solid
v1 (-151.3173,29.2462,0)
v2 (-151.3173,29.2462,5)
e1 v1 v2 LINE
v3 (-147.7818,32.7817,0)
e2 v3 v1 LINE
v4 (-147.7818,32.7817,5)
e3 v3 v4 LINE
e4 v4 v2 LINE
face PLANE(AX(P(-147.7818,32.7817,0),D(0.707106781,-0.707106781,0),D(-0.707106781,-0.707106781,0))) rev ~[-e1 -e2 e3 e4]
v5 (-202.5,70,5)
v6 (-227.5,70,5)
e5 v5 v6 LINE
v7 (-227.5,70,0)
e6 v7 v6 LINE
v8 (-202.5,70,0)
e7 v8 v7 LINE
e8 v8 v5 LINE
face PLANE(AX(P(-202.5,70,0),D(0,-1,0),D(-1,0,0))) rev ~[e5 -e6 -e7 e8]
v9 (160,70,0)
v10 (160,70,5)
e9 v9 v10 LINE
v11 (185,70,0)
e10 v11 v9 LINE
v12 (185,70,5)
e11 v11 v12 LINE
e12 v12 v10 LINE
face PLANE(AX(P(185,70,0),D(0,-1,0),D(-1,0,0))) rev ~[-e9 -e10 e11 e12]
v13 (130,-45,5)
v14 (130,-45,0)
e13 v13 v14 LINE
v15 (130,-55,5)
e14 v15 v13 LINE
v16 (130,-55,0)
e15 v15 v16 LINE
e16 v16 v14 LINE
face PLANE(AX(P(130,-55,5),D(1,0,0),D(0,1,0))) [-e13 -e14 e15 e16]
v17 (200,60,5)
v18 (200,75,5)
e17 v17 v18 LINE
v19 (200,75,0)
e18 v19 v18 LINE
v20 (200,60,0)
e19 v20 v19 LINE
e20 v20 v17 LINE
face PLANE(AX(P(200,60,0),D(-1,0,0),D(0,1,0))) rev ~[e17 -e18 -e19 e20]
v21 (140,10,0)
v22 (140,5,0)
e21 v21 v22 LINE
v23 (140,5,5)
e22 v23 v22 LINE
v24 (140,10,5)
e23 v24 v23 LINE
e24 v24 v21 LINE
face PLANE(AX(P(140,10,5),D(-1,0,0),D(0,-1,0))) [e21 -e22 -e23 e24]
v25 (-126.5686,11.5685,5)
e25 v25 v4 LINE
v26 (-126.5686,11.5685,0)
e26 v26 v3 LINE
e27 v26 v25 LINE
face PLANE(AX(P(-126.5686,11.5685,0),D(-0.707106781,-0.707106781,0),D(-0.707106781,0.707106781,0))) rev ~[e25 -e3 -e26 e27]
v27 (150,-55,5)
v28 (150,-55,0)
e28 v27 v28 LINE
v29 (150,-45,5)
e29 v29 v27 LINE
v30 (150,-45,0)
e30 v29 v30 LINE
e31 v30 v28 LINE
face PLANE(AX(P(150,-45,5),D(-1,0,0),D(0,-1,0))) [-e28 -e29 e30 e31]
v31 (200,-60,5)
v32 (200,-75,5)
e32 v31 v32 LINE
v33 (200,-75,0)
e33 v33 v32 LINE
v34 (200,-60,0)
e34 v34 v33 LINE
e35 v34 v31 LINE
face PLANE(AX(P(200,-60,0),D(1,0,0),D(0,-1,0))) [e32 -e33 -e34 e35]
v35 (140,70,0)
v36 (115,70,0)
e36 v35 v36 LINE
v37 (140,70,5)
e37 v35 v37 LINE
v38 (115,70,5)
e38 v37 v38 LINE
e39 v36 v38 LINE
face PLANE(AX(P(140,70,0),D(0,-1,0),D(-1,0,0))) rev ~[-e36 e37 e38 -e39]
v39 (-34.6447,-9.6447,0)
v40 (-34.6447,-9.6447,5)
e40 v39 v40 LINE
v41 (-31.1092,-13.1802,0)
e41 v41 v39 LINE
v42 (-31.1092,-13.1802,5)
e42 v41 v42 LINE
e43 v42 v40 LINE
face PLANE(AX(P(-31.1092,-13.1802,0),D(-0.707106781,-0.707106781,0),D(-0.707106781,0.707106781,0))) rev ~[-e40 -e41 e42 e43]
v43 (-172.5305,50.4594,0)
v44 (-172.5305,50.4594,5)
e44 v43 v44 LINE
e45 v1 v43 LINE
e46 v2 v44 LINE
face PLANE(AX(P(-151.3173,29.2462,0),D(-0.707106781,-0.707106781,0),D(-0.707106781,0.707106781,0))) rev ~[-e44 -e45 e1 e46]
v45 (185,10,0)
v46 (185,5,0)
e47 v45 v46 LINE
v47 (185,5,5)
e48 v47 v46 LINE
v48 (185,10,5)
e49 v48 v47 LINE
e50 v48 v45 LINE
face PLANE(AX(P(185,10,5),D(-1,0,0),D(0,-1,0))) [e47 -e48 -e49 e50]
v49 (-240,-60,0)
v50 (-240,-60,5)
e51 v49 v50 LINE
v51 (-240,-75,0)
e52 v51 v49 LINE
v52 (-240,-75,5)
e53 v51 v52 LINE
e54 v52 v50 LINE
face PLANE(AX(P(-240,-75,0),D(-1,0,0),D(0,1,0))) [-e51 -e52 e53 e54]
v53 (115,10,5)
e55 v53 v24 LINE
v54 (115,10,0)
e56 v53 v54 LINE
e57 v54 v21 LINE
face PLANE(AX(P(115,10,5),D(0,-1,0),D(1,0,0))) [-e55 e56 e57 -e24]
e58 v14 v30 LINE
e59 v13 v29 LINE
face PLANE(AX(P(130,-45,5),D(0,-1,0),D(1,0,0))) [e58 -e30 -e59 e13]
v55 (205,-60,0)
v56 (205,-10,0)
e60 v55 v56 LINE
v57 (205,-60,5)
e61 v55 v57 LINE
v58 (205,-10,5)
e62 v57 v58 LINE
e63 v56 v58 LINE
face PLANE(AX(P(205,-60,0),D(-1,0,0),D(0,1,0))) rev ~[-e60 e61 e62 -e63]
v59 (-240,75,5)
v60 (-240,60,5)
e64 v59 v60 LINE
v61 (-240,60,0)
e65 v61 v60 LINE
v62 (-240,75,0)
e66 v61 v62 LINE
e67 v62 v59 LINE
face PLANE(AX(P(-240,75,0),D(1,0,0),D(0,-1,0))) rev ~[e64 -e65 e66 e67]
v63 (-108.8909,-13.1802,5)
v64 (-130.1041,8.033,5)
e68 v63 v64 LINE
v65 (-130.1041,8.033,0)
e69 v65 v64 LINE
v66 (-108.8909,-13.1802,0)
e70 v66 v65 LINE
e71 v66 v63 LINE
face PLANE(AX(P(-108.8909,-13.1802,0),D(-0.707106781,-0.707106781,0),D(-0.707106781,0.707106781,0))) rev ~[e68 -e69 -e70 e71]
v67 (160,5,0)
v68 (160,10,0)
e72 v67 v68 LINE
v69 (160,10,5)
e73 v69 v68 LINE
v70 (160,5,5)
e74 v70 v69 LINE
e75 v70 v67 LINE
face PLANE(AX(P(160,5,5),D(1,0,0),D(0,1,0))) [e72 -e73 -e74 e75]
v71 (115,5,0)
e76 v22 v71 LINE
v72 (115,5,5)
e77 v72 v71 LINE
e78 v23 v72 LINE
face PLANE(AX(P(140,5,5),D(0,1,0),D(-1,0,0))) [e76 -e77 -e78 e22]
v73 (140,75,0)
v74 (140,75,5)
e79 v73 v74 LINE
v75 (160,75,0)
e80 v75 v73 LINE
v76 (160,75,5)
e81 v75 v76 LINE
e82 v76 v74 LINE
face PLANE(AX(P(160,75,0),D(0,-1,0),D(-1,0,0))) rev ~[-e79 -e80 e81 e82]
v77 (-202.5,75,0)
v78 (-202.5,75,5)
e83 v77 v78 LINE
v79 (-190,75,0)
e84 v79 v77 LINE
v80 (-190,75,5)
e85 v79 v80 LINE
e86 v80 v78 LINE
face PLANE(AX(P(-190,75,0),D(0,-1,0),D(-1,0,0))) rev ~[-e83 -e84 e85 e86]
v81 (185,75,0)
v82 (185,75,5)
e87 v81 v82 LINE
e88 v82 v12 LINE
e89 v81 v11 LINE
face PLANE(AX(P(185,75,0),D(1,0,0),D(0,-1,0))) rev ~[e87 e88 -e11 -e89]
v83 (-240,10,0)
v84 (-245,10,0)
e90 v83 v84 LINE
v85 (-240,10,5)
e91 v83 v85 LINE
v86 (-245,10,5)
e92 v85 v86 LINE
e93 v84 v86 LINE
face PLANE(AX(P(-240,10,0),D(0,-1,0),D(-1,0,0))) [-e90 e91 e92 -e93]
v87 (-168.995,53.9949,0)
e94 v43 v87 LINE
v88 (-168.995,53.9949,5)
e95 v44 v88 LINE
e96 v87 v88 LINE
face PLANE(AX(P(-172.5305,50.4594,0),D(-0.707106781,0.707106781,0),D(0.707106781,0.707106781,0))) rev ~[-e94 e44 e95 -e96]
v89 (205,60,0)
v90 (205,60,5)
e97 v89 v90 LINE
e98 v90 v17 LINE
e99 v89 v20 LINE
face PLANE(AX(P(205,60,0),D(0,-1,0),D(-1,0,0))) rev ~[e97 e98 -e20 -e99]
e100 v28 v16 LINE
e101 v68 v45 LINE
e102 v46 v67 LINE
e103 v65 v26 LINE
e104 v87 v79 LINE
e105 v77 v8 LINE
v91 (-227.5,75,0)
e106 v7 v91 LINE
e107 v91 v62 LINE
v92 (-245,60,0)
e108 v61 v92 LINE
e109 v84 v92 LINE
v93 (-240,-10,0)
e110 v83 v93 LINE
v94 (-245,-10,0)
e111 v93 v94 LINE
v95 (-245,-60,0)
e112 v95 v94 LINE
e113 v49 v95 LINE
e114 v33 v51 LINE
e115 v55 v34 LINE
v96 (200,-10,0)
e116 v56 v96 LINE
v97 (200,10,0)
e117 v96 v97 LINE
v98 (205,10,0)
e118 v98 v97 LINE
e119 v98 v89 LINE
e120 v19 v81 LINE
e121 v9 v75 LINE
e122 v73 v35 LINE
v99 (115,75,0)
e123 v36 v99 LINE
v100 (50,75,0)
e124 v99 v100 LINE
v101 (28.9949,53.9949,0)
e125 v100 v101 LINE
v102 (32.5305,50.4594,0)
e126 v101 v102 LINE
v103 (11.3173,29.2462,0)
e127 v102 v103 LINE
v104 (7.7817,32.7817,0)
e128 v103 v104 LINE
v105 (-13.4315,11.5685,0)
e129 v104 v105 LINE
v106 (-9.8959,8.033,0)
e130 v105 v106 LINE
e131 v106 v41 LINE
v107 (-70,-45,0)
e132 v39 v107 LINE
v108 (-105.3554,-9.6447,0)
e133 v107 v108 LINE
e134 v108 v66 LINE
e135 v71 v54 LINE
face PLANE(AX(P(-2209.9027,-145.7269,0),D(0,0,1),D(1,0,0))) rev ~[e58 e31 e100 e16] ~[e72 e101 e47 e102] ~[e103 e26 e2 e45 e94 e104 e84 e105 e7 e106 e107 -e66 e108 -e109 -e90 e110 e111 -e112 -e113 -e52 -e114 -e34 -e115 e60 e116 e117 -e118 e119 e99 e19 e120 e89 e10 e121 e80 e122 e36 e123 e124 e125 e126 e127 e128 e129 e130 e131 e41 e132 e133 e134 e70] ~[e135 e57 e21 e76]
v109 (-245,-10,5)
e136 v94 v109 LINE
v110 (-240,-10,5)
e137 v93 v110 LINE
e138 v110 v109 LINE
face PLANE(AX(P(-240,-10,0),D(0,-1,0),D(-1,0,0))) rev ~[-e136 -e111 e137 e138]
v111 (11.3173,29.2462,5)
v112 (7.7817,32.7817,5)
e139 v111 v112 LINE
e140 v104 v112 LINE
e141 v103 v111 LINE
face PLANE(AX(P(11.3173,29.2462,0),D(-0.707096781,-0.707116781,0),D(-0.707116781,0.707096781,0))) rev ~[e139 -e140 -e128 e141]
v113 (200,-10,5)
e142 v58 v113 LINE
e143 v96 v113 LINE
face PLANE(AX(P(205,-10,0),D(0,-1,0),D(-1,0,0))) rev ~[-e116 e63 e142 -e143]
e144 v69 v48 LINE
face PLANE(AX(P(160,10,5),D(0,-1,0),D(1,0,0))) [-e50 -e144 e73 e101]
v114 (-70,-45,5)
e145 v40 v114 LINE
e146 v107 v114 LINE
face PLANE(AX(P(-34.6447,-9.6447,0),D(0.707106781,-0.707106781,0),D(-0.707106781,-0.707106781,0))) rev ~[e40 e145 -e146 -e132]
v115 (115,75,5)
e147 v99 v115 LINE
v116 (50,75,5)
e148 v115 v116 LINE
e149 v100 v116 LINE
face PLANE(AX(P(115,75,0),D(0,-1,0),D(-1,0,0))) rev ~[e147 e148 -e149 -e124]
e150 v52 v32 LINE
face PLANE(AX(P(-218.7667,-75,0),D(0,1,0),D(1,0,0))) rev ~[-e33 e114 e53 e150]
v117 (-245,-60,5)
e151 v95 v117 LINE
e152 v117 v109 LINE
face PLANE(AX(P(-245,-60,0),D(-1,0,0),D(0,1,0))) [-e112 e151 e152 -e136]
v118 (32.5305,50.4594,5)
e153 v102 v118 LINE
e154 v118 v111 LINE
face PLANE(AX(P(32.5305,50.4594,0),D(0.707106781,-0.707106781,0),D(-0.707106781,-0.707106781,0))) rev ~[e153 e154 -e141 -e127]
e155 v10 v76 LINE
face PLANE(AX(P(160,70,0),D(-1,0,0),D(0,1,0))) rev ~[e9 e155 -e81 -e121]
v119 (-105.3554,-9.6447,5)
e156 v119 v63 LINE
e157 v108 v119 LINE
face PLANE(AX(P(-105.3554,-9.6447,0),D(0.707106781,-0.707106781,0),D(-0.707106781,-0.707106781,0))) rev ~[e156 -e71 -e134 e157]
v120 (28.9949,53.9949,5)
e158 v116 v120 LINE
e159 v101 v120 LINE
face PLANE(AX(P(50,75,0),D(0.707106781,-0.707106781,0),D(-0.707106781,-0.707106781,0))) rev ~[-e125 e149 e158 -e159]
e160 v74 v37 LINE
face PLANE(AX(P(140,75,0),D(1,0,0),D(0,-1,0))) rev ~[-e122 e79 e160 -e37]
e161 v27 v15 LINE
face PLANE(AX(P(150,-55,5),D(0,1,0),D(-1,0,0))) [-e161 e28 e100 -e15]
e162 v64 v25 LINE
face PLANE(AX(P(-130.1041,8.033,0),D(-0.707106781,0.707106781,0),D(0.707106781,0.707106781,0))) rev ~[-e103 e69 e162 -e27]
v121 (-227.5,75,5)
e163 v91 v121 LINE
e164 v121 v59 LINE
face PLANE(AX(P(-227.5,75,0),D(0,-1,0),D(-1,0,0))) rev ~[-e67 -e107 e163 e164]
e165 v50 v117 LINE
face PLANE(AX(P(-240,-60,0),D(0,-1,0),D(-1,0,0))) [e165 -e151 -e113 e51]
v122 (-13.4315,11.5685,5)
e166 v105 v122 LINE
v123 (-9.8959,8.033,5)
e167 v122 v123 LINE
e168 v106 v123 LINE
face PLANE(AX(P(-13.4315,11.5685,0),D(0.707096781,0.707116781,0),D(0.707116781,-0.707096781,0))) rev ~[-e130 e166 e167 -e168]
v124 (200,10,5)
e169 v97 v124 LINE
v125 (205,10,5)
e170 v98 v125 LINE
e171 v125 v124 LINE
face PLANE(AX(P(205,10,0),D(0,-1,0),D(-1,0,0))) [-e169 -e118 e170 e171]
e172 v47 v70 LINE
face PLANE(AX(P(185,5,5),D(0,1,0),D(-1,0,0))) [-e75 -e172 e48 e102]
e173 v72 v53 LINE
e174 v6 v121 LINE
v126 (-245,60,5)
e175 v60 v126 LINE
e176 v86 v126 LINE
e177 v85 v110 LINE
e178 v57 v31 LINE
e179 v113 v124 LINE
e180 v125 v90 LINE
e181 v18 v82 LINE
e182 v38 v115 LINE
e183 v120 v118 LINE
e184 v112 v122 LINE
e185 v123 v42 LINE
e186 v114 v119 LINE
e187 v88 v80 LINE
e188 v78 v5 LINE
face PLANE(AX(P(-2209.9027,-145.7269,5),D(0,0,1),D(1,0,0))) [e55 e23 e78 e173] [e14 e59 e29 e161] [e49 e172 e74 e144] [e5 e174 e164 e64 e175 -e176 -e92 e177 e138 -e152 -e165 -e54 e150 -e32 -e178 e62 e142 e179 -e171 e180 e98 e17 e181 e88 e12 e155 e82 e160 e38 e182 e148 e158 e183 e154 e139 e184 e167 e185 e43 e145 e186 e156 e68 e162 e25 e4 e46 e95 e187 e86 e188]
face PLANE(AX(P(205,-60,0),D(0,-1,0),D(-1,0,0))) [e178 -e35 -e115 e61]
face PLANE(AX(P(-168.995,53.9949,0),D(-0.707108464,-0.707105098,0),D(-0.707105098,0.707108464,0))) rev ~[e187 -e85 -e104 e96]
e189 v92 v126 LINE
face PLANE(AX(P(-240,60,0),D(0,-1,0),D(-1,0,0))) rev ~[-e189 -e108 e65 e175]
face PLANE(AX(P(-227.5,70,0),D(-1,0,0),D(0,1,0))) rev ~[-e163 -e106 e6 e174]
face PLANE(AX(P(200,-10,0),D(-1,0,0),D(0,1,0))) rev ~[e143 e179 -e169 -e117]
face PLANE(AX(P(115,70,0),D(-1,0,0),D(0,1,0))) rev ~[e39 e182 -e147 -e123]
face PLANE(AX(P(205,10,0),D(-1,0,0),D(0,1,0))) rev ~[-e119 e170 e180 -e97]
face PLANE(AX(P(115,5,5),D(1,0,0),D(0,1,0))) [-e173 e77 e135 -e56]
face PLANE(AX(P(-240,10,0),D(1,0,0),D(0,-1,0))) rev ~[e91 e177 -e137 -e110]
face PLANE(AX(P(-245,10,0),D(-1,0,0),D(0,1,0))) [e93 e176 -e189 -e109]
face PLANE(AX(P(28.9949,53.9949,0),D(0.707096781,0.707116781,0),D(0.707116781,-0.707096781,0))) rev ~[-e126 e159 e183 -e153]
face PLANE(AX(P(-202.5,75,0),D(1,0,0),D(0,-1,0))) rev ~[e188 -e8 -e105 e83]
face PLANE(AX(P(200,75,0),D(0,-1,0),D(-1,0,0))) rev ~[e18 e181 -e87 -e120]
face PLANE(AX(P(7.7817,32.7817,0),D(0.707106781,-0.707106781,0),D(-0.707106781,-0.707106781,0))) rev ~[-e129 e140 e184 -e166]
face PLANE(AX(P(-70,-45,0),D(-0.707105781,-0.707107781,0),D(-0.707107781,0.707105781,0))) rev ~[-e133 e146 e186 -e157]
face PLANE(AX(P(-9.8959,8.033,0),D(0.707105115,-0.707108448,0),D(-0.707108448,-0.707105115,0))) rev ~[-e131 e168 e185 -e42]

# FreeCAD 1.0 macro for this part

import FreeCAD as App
import Part
import Sketcher

doc = App.newDocument("Part")
params = doc.addObject("Spreadsheet::Sheet", "Params")
for row, (alias, value) in enumerate([
    ("sketch1_width", "5 mm"),
    ("sketch1_width2", "440 mm"),
    ("sketch1_width3", "15 mm"),
    ("sketch1_width4", "25 mm"),
    ("sketch1_width5", "20 mm"),
    ("pad1_length", "5 mm"),
    ("sketch2_width", "25 mm"),
    ("sketch2_height", "5 mm"),
    ("pocket1_length", "5 mm"),
    ("sketch3_width", "20 mm"),
    ("sketch3_height", "10 mm"),
    ("pocket2_length", "10 mm"),
], start=1):
    params.set(f"A{row}", alias)
    params.set(f"B{row}", "=" + value)
    params.setAlias(f"B{row}", alias)

body = doc.addObject("PartDesign::Body", "Body")

sketch1 = body.newObject("Sketcher::SketchObject", "Sketch")
sketch1.AttachmentSupport = (doc.getObject("XY_Plane"), [""])
sketch1.MapMode = "FlatFace"
sketch1.addGeometry(Part.LineSegment(App.Vector(-240, 10, 0), App.Vector(-240, -10, 0)), False)
sketch1.addGeometry(Part.LineSegment(App.Vector(-240, -10, 0), App.Vector(-245, -10, 0)), False)
sketch1.addGeometry(Part.LineSegment(App.Vector(-245, -10, 0), App.Vector(-245, -60, 0)), False)
sketch1.addGeometry(Part.LineSegment(App.Vector(-245, -60, 0), App.Vector(-240, -60, 0)), False)
sketch1.addGeometry(Part.LineSegment(App.Vector(-240, -60, 0), App.Vector(-240, -75, 0)), False)
sketch1.addGeometry(Part.LineSegment(App.Vector(-240, -75, 0), App.Vector(200, -75, 0)), False)
sketch1.addGeometry(Part.LineSegment(App.Vector(200, -75, 0), App.Vector(200, -60, 0)), False)
sketch1.addGeometry(Part.LineSegment(App.Vector(200, -60, 0), App.Vector(205, -60, 0)), False)
sketch1.addGeometry(Part.LineSegment(App.Vector(205, -60, 0), App.Vector(205, -10, 0)), False)
sketch1.addGeometry(Part.LineSegment(App.Vector(205, -10, 0), App.Vector(200, -10, 0)), False)
sketch1.addGeometry(Part.LineSegment(App.Vector(200, -10, 0), App.Vector(200, 10, 0)), False)
sketch1.addGeometry(Part.LineSegment(App.Vector(200, 10, 0), App.Vector(205, 10, 0)), False)
sketch1.addGeometry(Part.LineSegment(App.Vector(205, 10, 0), App.Vector(205, 60, 0)), False)
sketch1.addGeometry(Part.LineSegment(App.Vector(205, 60, 0), App.Vector(200, 60, 0)), False)
sketch1.addGeometry(Part.LineSegment(App.Vector(200, 60, 0), App.Vector(200, 75, 0)), False)
sketch1.addGeometry(Part.LineSegment(App.Vector(200, 75, 0), App.Vector(185, 75, 0)), False)
sketch1.addGeometry(Part.LineSegment(App.Vector(185, 75, 0), App.Vector(185, 70, 0)), False)
sketch1.addGeometry(Part.LineSegment(App.Vector(185, 70, 0), App.Vector(160, 70, 0)), False)
sketch1.addGeometry(Part.LineSegment(App.Vector(160, 70, 0), App.Vector(160, 75, 0)), False)
sketch1.addGeometry(Part.LineSegment(App.Vector(160, 75, 0), App.Vector(140, 75, 0)), False)
sketch1.addGeometry(Part.LineSegment(App.Vector(140, 75, 0), App.Vector(140, 70, 0)), False)
sketch1.addGeometry(Part.LineSegment(App.Vector(140, 70, 0), App.Vector(115, 70, 0)), False)
sketch1.addGeometry(Part.LineSegment(App.Vector(115, 70, 0), App.Vector(115, 75, 0)), False)
sketch1.addGeometry(Part.LineSegment(App.Vector(115, 75, 0), App.Vector(50, 75, 0)), False)
sketch1.addGeometry(Part.LineSegment(App.Vector(50, 75, 0), App.Vector(28.9949, 53.9949, 0)), False)
sketch1.addGeometry(Part.LineSegment(App.Vector(28.9949, 53.9949, 0), App.Vector(32.5305, 50.4594, 0)), False)
sketch1.addGeometry(Part.LineSegment(App.Vector(32.5305, 50.4594, 0), App.Vector(11.3173, 29.2462, 0)), False)
sketch1.addGeometry(Part.LineSegment(App.Vector(11.3173, 29.2462, 0), App.Vector(7.7817, 32.7817, 0)), False)
sketch1.addGeometry(Part.LineSegment(App.Vector(7.7817, 32.7817, 0), App.Vector(-13.4315, 11.5685, 0)), False)
sketch1.addGeometry(Part.LineSegment(App.Vector(-13.4315, 11.5685, 0), App.Vector(-9.8959, 8.033, 0)), False)
sketch1.addGeometry(Part.LineSegment(App.Vector(-9.8959, 8.033, 0), App.Vector(-31.1092, -13.1802, 0)), False)
sketch1.addGeometry(Part.LineSegment(App.Vector(-31.1092, -13.1802, 0), App.Vector(-34.6447, -9.6447, 0)), False)
sketch1.addGeometry(Part.LineSegment(App.Vector(-34.6447, -9.6447, 0), App.Vector(-70, -45, 0)), False)
sketch1.addGeometry(Part.LineSegment(App.Vector(-70, -45, 0), App.Vector(-105.3554, -9.6447, 0)), False)
sketch1.addGeometry(Part.LineSegment(App.Vector(-105.3554, -9.6447, 0), App.Vector(-108.8909, -13.1802, 0)), False)
sketch1.addGeometry(Part.LineSegment(App.Vector(-108.8909, -13.1802, 0), App.Vector(-130.1041, 8.033, 0)), False)
sketch1.addGeometry(Part.LineSegment(App.Vector(-130.1041, 8.033, 0), App.Vector(-126.5686, 11.5685, 0)), False)
sketch1.addGeometry(Part.LineSegment(App.Vector(-126.5686, 11.5685, 0), App.Vector(-147.7818, 32.7817, 0)), False)
sketch1.addGeometry(Part.LineSegment(App.Vector(-147.7818, 32.7817, 0), App.Vector(-151.3173, 29.2462, 0)), False)
sketch1.addGeometry(Part.LineSegment(App.Vector(-151.3173, 29.2462, 0), App.Vector(-172.5305, 50.4594, 0)), False)
sketch1.addGeometry(Part.LineSegment(App.Vector(-172.5305, 50.4594, 0), App.Vector(-168.995, 53.9949, 0)), False)
sketch1.addGeometry(Part.LineSegment(App.Vector(-168.995, 53.9949, 0), App.Vector(-190, 75, 0)), False)
sketch1.addGeometry(Part.LineSegment(App.Vector(-190, 75, 0), App.Vector(-202.5, 75, 0)), False)
sketch1.addGeometry(Part.LineSegment(App.Vector(-202.5, 75, 0), App.Vector(-202.5, 70, 0)), False)
sketch1.addGeometry(Part.LineSegment(App.Vector(-202.5, 70, 0), App.Vector(-227.5, 70, 0)), False)
sketch1.addGeometry(Part.LineSegment(App.Vector(-227.5, 70, 0), App.Vector(-227.5, 75, 0)), False)
sketch1.addGeometry(Part.LineSegment(App.Vector(-227.5, 75, 0), App.Vector(-240, 75, 0)), False)
sketch1.addGeometry(Part.LineSegment(App.Vector(-240, 75, 0), App.Vector(-240, 60, 0)), False)
sketch1.addGeometry(Part.LineSegment(App.Vector(-240, 60, 0), App.Vector(-245, 60, 0)), False)
sketch1.addGeometry(Part.LineSegment(App.Vector(-245, 60, 0), App.Vector(-245, 10, 0)), False)
sketch1.addGeometry(Part.LineSegment(App.Vector(-245, 10, 0), App.Vector(-240, 10, 0)), False)
sketch1.addConstraint(Sketcher.Constraint("Coincident", 0, 2, 1, 1))
sketch1.addConstraint(Sketcher.Constraint("Coincident", 1, 2, 2, 1))
sketch1.addConstraint(Sketcher.Constraint("Coincident", 2, 2, 3, 1))
sketch1.addConstraint(Sketcher.Constraint("Coincident", 3, 2, 4, 1))
sketch1.addConstraint(Sketcher.Constraint("Coincident", 4, 2, 5, 1))
sketch1.addConstraint(Sketcher.Constraint("Coincident", 5, 2, 6, 1))
sketch1.addConstraint(Sketcher.Constraint("Coincident", 6, 2, 7, 1))
sketch1.addConstraint(Sketcher.Constraint("Coincident", 7, 2, 8, 1))
sketch1.addConstraint(Sketcher.Constraint("Coincident", 8, 2, 9, 1))
sketch1.addConstraint(Sketcher.Constraint("Coincident", 9, 2, 10, 1))
sketch1.addConstraint(Sketcher.Constraint("Coincident", 10, 2, 11, 1))
sketch1.addConstraint(Sketcher.Constraint("Coincident", 11, 2, 12, 1))
sketch1.addConstraint(Sketcher.Constraint("Coincident", 12, 2, 13, 1))
sketch1.addConstraint(Sketcher.Constraint("Coincident", 13, 2, 14, 1))
sketch1.addConstraint(Sketcher.Constraint("Coincident", 14, 2, 15, 1))
sketch1.addConstraint(Sketcher.Constraint("Coincident", 15, 2, 16, 1))
sketch1.addConstraint(Sketcher.Constraint("Coincident", 16, 2, 17, 1))
sketch1.addConstraint(Sketcher.Constraint("Coincident", 17, 2, 18, 1))
sketch1.addConstraint(Sketcher.Constraint("Coincident", 18, 2, 19, 1))
sketch1.addConstraint(Sketcher.Constraint("Coincident", 19, 2, 20, 1))
sketch1.addConstraint(Sketcher.Constraint("Coincident", 20, 2, 21, 1))
sketch1.addConstraint(Sketcher.Constraint("Coincident", 21, 2, 22, 1))
sketch1.addConstraint(Sketcher.Constraint("Coincident", 22, 2, 23, 1))
sketch1.addConstraint(Sketcher.Constraint("Coincident", 23, 2, 24, 1))
sketch1.addConstraint(Sketcher.Constraint("Coincident", 24, 2, 25, 1))
sketch1.addConstraint(Sketcher.Constraint("Coincident", 25, 2, 26, 1))
sketch1.addConstraint(Sketcher.Constraint("Coincident", 26, 2, 27, 1))
sketch1.addConstraint(Sketcher.Constraint("Coincident", 27, 2, 28, 1))
sketch1.addConstraint(Sketcher.Constraint("Coincident", 28, 2, 29, 1))
sketch1.addConstraint(Sketcher.Constraint("Coincident", 29, 2, 30, 1))
sketch1.addConstraint(Sketcher.Constraint("Coincident", 30, 2, 31, 1))
sketch1.addConstraint(Sketcher.Constraint("Coincident", 31, 2, 32, 1))
sketch1.addConstraint(Sketcher.Constraint("Coincident", 32, 2, 33, 1))
sketch1.addConstraint(Sketcher.Constraint("Coincident", 33, 2, 34, 1))
sketch1.addConstraint(Sketcher.Constraint("Coincident", 34, 2, 35, 1))
sketch1.addConstraint(Sketcher.Constraint("Coincident", 35, 2, 36, 1))
sketch1.addConstraint(Sketcher.Constraint("Coincident", 36, 2, 37, 1))
sketch1.addConstraint(Sketcher.Constraint("Coincident", 37, 2, 38, 1))
sketch1.addConstraint(Sketcher.Constraint("Coincident", 38, 2, 39, 1))
sketch1.addConstraint(Sketcher.Constraint("Coincident", 39, 2, 40, 1))
sketch1.addConstraint(Sketcher.Constraint("Coincident", 40, 2, 41, 1))
sketch1.addConstraint(Sketcher.Constraint("Coincident", 41, 2, 42, 1))
sketch1.addConstraint(Sketcher.Constraint("Coincident", 42, 2, 43, 1))
sketch1.addConstraint(Sketcher.Constraint("Coincident", 43, 2, 44, 1))
sketch1.addConstraint(Sketcher.Constraint("Coincident", 44, 2, 45, 1))
sketch1.addConstraint(Sketcher.Constraint("Coincident", 45, 2, 46, 1))
sketch1.addConstraint(Sketcher.Constraint("Coincident", 46, 2, 47, 1))
sketch1.addConstraint(Sketcher.Constraint("Coincident", 47, 2, 48, 1))
sketch1.addConstraint(Sketcher.Constraint("Coincident", 48, 2, 49, 1))
sketch1.addConstraint(Sketcher.Constraint("Coincident", 49, 2, 50, 1))
sketch1.addConstraint(Sketcher.Constraint("Coincident", 50, 2, 0, 1))
sketch1.addConstraint(Sketcher.Constraint("Vertical", 0))
sketch1.addConstraint(Sketcher.Constraint("Horizontal", 1))
sketch1.addConstraint(Sketcher.Constraint("Vertical", 2))
sketch1.addConstraint(Sketcher.Constraint("Horizontal", 3))
sketch1.addConstraint(Sketcher.Constraint("Vertical", 4))
sketch1.addConstraint(Sketcher.Constraint("Horizontal", 5))
sketch1.addConstraint(Sketcher.Constraint("Vertical", 6))
sketch1.addConstraint(Sketcher.Constraint("Horizontal", 7))
sketch1.addConstraint(Sketcher.Constraint("Vertical", 8))
sketch1.addConstraint(Sketcher.Constraint("Horizontal", 9))
sketch1.addConstraint(Sketcher.Constraint("Vertical", 10))
sketch1.addConstraint(Sketcher.Constraint("Horizontal", 11))
sketch1.addConstraint(Sketcher.Constraint("Vertical", 12))
sketch1.addConstraint(Sketcher.Constraint("Horizontal", 13))
sketch1.addConstraint(Sketcher.Constraint("Vertical", 14))
sketch1.addConstraint(Sketcher.Constraint("Horizontal", 15))
sketch1.addConstraint(Sketcher.Constraint("Vertical", 16))
sketch1.addConstraint(Sketcher.Constraint("Horizontal", 17))
sketch1.addConstraint(Sketcher.Constraint("Vertical", 18))
sketch1.addConstraint(Sketcher.Constraint("Horizontal", 19))
sketch1.addConstraint(Sketcher.Constraint("Vertical", 20))
sketch1.addConstraint(Sketcher.Constraint("Horizontal", 21))
sketch1.addConstraint(Sketcher.Constraint("Vertical", 22))
sketch1.addConstraint(Sketcher.Constraint("Horizontal", 23))
sketch1.addConstraint(Sketcher.Constraint("Horizontal", 42))
sketch1.addConstraint(Sketcher.Constraint("Vertical", 43))
sketch1.addConstraint(Sketcher.Constraint("Horizontal", 44))
sketch1.addConstraint(Sketcher.Constraint("Vertical", 45))
sketch1.addConstraint(Sketcher.Constraint("Horizontal", 46))
sketch1.addConstraint(Sketcher.Constraint("Vertical", 47))
sketch1.addConstraint(Sketcher.Constraint("Horizontal", 48))
sketch1.addConstraint(Sketcher.Constraint("Vertical", 49))
sketch1.addConstraint(Sketcher.Constraint("Horizontal", 50))
sketch1.addConstraint(Sketcher.Constraint("Symmetric", 8, 2, 11, 2, -1))
sketch1.addConstraint(Sketcher.Constraint("Symmetric", 6, 2, 13, 2, -1))
sketch1.addConstraint(Sketcher.Constraint("Symmetric", 4, 2, 46, 2, -1))
sketch1.addConstraint(Sketcher.Constraint("Symmetric", 2, 2, 48, 2, -1))
sketch1.addConstraint(Sketcher.Constraint("Perpendicular", 24, 25))
sketch1.addConstraint(Sketcher.Constraint("Perpendicular", 25, 26))
sketch1.addConstraint(Sketcher.Constraint("Perpendicular", 26, 27))
sketch1.addConstraint(Sketcher.Constraint("Perpendicular", 27, 28))
sketch1.addConstraint(Sketcher.Constraint("Perpendicular", 28, 29))
sketch1.addConstraint(Sketcher.Constraint("Perpendicular", 29, 30))
sketch1.addConstraint(Sketcher.Constraint("Perpendicular", 30, 31))
sketch1.addConstraint(Sketcher.Constraint("Perpendicular", 31, 32))
sketch1.addConstraint(Sketcher.Constraint("Perpendicular", 32, 33))
sketch1.addConstraint(Sketcher.Constraint("Perpendicular", 33, 34))
sketch1.addConstraint(Sketcher.Constraint("Perpendicular", 34, 35))
sketch1.addConstraint(Sketcher.Constraint("Perpendicular", 35, 36))
sketch1.addConstraint(Sketcher.Constraint("Perpendicular", 36, 37))
sketch1.addConstraint(Sketcher.Constraint("Perpendicular", 37, 38))
sketch1.addConstraint(Sketcher.Constraint("Perpendicular", 38, 39))
sketch1.addConstraint(Sketcher.Constraint("Perpendicular", 39, 40))
sketch1.addConstraint(Sketcher.Constraint("Perpendicular", 40, 41))
sketch1.addConstraint(Sketcher.Constraint("Horizontal", 3, 2, 6, 2))
sketch1.addConstraint(Sketcher.Constraint("Horizontal", 1, 2, 8, 2))
sketch1.addConstraint(Sketcher.Constraint("Horizontal", 15, 2, 18, 2))
sketch1.addConstraint(Sketcher.Constraint("Horizontal", 17, 2, 20, 2))
sketch1.addConstraint(Sketcher.Constraint("Horizontal", 19, 2, 22, 2))
sketch1.addConstraint(Sketcher.Constraint("Horizontal", 31, 2, 33, 2))
sketch1.addConstraint(Sketcher.Constraint("Horizontal", 30, 2, 34, 2))
sketch1.addConstraint(Sketcher.Constraint("Horizontal", 29, 2, 35, 2))
sketch1.addConstraint(Sketcher.Constraint("Horizontal", 28, 2, 36, 2))
sketch1.addConstraint(Sketcher.Constraint("Horizontal", 27, 2, 37, 2))
sketch1.addConstraint(Sketcher.Constraint("Horizontal", 26, 2, 38, 2))
sketch1.addConstraint(Sketcher.Constraint("Horizontal", 25, 2, 39, 2))
sketch1.addConstraint(Sketcher.Constraint("Horizontal", 24, 2, 40, 2))
sketch1.addConstraint(Sketcher.Constraint("Horizontal", 23, 2, 41, 2))
sketch1.addConstraint(Sketcher.Constraint("Horizontal", 21, 2, 43, 2))
sketch1.addConstraint(Sketcher.Constraint("Horizontal", 42, 2, 45, 2))
sketch1.addConstraint(Sketcher.Constraint("Horizontal", 11, 2, 49, 2))
sketch1.addConstraint(Sketcher.Constraint("Vertical", 0, 2, 3, 2))
sketch1.addConstraint(Sketcher.Constraint("Vertical", 6, 2, 9, 2))
sketch1.addConstraint(Sketcher.Constraint("Equal", 3, 7))
sketch1.addConstraint(Sketcher.Constraint("Equal", 17, 21))
sketch1.addConstraint(Sketcher.Constraint("Equal", 21, 44))
sketch1.addConstraint(Sketcher.Constraint("Equal", 42, 46))
sketch1.addConstraint(Sketcher.Constraint("Equal", 19, 0))
sketch1.addConstraint(Sketcher.Constraint("Equal", 15, 4))
sketch1.addConstraint(Sketcher.Constraint("Equal", 50, 16))
sketch1.addConstraint(Sketcher.Constraint("Equal", 25, 27))
sketch1.addConstraint(Sketcher.Constraint("Equal", 26, 28))
sketch1.addConstraint(Sketcher.Constraint("Equal", 27, 29))
sketch1.addConstraint(Sketcher.Constraint("Equal", 28, 30))
sketch1.addConstraint(Sketcher.Constraint("Equal", 29, 31))
sketch1.addConstraint(Sketcher.Constraint("Equal", 32, 33))
sketch1.addConstraint(Sketcher.Constraint("DistanceX", 1, 2, 1, 1, 5.0))
sketch1.addConstraint(Sketcher.Constraint("DistanceX", 5, 1, 5, 2, 440.0))
sketch1.addConstraint(Sketcher.Constraint("DistanceX", 15, 2, 15, 1, 15.0))
sketch1.addConstraint(Sketcher.Constraint("DistanceX", 17, 2, 17, 1, 25.0))
sketch1.addConstraint(Sketcher.Constraint("DistanceX", 19, 2, 19, 1, 20.0))
sketch1.addConstraint(Sketcher.Constraint("DistanceX", 23, 2, 23, 1, 65.0))
sketch1.addConstraint(Sketcher.Constraint("DistanceY", 2, 2, 2, 1, 50.0))
sketch1.addConstraint(Sketcher.Constraint("Distance", 25, 5.0))
sketch1.addConstraint(Sketcher.Constraint("Distance", 26, 30.0))
sketch1.addConstraint(Sketcher.Constraint("Distance", 32, 50.0))
sketch1.addConstraint(Sketcher.Constraint("DistanceX", 42, 2, 42, 1, 12.5))
sketch1.addConstraint(Sketcher.Constraint("DistanceX", 0, 2, -1, 1, 240.0))
sketch1.setExpression("Constraints[137]", "Params.sketch1_width")
sketch1.setExpression("Constraints[138]", "Params.sketch1_width2")
sketch1.setExpression("Constraints[139]", "Params.sketch1_width3")
sketch1.setExpression("Constraints[140]", "Params.sketch1_width4")
sketch1.setExpression("Constraints[141]", "Params.sketch1_width5")
pad1 = body.newObject("PartDesign::Pad", "Pad")
pad1.Profile = sketch1
pad1.setExpression("Length", "Params.pad1_length")

sketch2 = body.newObject("Sketcher::SketchObject", "Sketch001")
sketch2.AttachmentSupport = (doc.getObject("XY_Plane"), [""])
sketch2.MapMode = "FlatFace"
sketch2.AttachmentOffset = App.Placement(App.Vector(0, 0, 5), App.Rotation())
sketch2.addGeometry(Part.LineSegment(App.Vector(140, 10, 0), App.Vector(115, 10, 0)), False)
sketch2.addGeometry(Part.LineSegment(App.Vector(115, 10, 0), App.Vector(115, 5, 0)), False)
sketch2.addGeometry(Part.LineSegment(App.Vector(115, 5, 0), App.Vector(140, 5, 0)), False)
sketch2.addGeometry(Part.LineSegment(App.Vector(140, 5, 0), App.Vector(140, 10, 0)), False)
sketch2.addGeometry(Part.LineSegment(App.Vector(185, 10, 0), App.Vector(160, 10, 0)), False)
sketch2.addGeometry(Part.LineSegment(App.Vector(160, 10, 0), App.Vector(160, 5, 0)), False)
sketch2.addGeometry(Part.LineSegment(App.Vector(160, 5, 0), App.Vector(185, 5, 0)), False)
sketch2.addGeometry(Part.LineSegment(App.Vector(185, 5, 0), App.Vector(185, 10, 0)), False)
sketch2.addConstraint(Sketcher.Constraint("Coincident", 0, 2, 1, 1))
sketch2.addConstraint(Sketcher.Constraint("Coincident", 1, 2, 2, 1))
sketch2.addConstraint(Sketcher.Constraint("Coincident", 2, 2, 3, 1))
sketch2.addConstraint(Sketcher.Constraint("Coincident", 3, 2, 0, 1))
sketch2.addConstraint(Sketcher.Constraint("Coincident", 4, 2, 5, 1))
sketch2.addConstraint(Sketcher.Constraint("Coincident", 5, 2, 6, 1))
sketch2.addConstraint(Sketcher.Constraint("Coincident", 6, 2, 7, 1))
sketch2.addConstraint(Sketcher.Constraint("Coincident", 7, 2, 4, 1))
sketch2.addConstraint(Sketcher.Constraint("Horizontal", 0))
sketch2.addConstraint(Sketcher.Constraint("Vertical", 1))
sketch2.addConstraint(Sketcher.Constraint("Horizontal", 2))
sketch2.addConstraint(Sketcher.Constraint("Vertical", 3))
sketch2.addConstraint(Sketcher.Constraint("Horizontal", 4))
sketch2.addConstraint(Sketcher.Constraint("Vertical", 5))
sketch2.addConstraint(Sketcher.Constraint("Horizontal", 6))
sketch2.addConstraint(Sketcher.Constraint("Vertical", 7))
sketch2.addConstraint(Sketcher.Constraint("Horizontal", 3, 2, 4, 2))
sketch2.addConstraint(Sketcher.Constraint("Horizontal", 2, 2, 5, 2))
sketch2.addConstraint(Sketcher.Constraint("Equal", 2, 4))
sketch2.addConstraint(Sketcher.Constraint("DistanceX", 0, 2, 0, 1, 25.0))
sketch2.addConstraint(Sketcher.Constraint("DistanceY", 1, 2, 1, 1, 5.0))
sketch2.addConstraint(Sketcher.Constraint("DistanceY", -1, 1, 1, 2, 5.0))
sketch2.addConstraint(Sketcher.Constraint("DistanceX", 3, 2, 4, 2, 20.0))
sketch2.addConstraint(Sketcher.Constraint("DistanceX", -1, 1, 0, 2, 115.0))
sketch2.setExpression("Constraints[19]", "Params.sketch2_width")
sketch2.setExpression("Constraints[20]", "Params.sketch2_height")
pocket1 = body.newObject("PartDesign::Pocket", "Pocket")
pocket1.Profile = sketch2
pocket1.setExpression("Length", "Params.pocket1_length")

sketch3 = body.newObject("Sketcher::SketchObject", "Sketch002")
sketch3.AttachmentSupport = (doc.getObject("XY_Plane"), [""])
sketch3.MapMode = "FlatFace"
sketch3.AttachmentOffset = App.Placement(App.Vector(0, 0, 5), App.Rotation())
sketch3.addGeometry(Part.LineSegment(App.Vector(150, -45, 0), App.Vector(130, -45, 0)), False)
sketch3.addGeometry(Part.LineSegment(App.Vector(130, -45, 0), App.Vector(130, -55, 0)), False)
sketch3.addGeometry(Part.LineSegment(App.Vector(130, -55, 0), App.Vector(150, -55, 0)), False)
sketch3.addGeometry(Part.LineSegment(App.Vector(150, -55, 0), App.Vector(150, -45, 0)), False)
sketch3.addConstraint(Sketcher.Constraint("Coincident", 0, 2, 1, 1))
sketch3.addConstraint(Sketcher.Constraint("Coincident", 1, 2, 2, 1))
sketch3.addConstraint(Sketcher.Constraint("Coincident", 2, 2, 3, 1))
sketch3.addConstraint(Sketcher.Constraint("Coincident", 3, 2, 0, 1))
sketch3.addConstraint(Sketcher.Constraint("Horizontal", 0))
sketch3.addConstraint(Sketcher.Constraint("Vertical", 1))
sketch3.addConstraint(Sketcher.Constraint("Horizontal", 2))
sketch3.addConstraint(Sketcher.Constraint("Vertical", 3))
sketch3.addConstraint(Sketcher.Constraint("DistanceX", 0, 2, 0, 1, 20.0))
sketch3.addConstraint(Sketcher.Constraint("DistanceY", 1, 2, 1, 1, 10.0))
sketch3.addConstraint(Sketcher.Constraint("DistanceX", -1, 1, 0, 2, 130.0))
sketch3.addConstraint(Sketcher.Constraint("DistanceY", 0, 2, -1, 1, 45.0))
sketch3.setExpression("Constraints[8]", "Params.sketch3_width")
sketch3.setExpression("Constraints[9]", "Params.sketch3_height")
pocket2 = body.newObject("PartDesign::Pocket", "Pocket001")
pocket2.Profile = sketch3
pocket2.setExpression("Length", "Params.pocket2_length")

doc.recompute()
